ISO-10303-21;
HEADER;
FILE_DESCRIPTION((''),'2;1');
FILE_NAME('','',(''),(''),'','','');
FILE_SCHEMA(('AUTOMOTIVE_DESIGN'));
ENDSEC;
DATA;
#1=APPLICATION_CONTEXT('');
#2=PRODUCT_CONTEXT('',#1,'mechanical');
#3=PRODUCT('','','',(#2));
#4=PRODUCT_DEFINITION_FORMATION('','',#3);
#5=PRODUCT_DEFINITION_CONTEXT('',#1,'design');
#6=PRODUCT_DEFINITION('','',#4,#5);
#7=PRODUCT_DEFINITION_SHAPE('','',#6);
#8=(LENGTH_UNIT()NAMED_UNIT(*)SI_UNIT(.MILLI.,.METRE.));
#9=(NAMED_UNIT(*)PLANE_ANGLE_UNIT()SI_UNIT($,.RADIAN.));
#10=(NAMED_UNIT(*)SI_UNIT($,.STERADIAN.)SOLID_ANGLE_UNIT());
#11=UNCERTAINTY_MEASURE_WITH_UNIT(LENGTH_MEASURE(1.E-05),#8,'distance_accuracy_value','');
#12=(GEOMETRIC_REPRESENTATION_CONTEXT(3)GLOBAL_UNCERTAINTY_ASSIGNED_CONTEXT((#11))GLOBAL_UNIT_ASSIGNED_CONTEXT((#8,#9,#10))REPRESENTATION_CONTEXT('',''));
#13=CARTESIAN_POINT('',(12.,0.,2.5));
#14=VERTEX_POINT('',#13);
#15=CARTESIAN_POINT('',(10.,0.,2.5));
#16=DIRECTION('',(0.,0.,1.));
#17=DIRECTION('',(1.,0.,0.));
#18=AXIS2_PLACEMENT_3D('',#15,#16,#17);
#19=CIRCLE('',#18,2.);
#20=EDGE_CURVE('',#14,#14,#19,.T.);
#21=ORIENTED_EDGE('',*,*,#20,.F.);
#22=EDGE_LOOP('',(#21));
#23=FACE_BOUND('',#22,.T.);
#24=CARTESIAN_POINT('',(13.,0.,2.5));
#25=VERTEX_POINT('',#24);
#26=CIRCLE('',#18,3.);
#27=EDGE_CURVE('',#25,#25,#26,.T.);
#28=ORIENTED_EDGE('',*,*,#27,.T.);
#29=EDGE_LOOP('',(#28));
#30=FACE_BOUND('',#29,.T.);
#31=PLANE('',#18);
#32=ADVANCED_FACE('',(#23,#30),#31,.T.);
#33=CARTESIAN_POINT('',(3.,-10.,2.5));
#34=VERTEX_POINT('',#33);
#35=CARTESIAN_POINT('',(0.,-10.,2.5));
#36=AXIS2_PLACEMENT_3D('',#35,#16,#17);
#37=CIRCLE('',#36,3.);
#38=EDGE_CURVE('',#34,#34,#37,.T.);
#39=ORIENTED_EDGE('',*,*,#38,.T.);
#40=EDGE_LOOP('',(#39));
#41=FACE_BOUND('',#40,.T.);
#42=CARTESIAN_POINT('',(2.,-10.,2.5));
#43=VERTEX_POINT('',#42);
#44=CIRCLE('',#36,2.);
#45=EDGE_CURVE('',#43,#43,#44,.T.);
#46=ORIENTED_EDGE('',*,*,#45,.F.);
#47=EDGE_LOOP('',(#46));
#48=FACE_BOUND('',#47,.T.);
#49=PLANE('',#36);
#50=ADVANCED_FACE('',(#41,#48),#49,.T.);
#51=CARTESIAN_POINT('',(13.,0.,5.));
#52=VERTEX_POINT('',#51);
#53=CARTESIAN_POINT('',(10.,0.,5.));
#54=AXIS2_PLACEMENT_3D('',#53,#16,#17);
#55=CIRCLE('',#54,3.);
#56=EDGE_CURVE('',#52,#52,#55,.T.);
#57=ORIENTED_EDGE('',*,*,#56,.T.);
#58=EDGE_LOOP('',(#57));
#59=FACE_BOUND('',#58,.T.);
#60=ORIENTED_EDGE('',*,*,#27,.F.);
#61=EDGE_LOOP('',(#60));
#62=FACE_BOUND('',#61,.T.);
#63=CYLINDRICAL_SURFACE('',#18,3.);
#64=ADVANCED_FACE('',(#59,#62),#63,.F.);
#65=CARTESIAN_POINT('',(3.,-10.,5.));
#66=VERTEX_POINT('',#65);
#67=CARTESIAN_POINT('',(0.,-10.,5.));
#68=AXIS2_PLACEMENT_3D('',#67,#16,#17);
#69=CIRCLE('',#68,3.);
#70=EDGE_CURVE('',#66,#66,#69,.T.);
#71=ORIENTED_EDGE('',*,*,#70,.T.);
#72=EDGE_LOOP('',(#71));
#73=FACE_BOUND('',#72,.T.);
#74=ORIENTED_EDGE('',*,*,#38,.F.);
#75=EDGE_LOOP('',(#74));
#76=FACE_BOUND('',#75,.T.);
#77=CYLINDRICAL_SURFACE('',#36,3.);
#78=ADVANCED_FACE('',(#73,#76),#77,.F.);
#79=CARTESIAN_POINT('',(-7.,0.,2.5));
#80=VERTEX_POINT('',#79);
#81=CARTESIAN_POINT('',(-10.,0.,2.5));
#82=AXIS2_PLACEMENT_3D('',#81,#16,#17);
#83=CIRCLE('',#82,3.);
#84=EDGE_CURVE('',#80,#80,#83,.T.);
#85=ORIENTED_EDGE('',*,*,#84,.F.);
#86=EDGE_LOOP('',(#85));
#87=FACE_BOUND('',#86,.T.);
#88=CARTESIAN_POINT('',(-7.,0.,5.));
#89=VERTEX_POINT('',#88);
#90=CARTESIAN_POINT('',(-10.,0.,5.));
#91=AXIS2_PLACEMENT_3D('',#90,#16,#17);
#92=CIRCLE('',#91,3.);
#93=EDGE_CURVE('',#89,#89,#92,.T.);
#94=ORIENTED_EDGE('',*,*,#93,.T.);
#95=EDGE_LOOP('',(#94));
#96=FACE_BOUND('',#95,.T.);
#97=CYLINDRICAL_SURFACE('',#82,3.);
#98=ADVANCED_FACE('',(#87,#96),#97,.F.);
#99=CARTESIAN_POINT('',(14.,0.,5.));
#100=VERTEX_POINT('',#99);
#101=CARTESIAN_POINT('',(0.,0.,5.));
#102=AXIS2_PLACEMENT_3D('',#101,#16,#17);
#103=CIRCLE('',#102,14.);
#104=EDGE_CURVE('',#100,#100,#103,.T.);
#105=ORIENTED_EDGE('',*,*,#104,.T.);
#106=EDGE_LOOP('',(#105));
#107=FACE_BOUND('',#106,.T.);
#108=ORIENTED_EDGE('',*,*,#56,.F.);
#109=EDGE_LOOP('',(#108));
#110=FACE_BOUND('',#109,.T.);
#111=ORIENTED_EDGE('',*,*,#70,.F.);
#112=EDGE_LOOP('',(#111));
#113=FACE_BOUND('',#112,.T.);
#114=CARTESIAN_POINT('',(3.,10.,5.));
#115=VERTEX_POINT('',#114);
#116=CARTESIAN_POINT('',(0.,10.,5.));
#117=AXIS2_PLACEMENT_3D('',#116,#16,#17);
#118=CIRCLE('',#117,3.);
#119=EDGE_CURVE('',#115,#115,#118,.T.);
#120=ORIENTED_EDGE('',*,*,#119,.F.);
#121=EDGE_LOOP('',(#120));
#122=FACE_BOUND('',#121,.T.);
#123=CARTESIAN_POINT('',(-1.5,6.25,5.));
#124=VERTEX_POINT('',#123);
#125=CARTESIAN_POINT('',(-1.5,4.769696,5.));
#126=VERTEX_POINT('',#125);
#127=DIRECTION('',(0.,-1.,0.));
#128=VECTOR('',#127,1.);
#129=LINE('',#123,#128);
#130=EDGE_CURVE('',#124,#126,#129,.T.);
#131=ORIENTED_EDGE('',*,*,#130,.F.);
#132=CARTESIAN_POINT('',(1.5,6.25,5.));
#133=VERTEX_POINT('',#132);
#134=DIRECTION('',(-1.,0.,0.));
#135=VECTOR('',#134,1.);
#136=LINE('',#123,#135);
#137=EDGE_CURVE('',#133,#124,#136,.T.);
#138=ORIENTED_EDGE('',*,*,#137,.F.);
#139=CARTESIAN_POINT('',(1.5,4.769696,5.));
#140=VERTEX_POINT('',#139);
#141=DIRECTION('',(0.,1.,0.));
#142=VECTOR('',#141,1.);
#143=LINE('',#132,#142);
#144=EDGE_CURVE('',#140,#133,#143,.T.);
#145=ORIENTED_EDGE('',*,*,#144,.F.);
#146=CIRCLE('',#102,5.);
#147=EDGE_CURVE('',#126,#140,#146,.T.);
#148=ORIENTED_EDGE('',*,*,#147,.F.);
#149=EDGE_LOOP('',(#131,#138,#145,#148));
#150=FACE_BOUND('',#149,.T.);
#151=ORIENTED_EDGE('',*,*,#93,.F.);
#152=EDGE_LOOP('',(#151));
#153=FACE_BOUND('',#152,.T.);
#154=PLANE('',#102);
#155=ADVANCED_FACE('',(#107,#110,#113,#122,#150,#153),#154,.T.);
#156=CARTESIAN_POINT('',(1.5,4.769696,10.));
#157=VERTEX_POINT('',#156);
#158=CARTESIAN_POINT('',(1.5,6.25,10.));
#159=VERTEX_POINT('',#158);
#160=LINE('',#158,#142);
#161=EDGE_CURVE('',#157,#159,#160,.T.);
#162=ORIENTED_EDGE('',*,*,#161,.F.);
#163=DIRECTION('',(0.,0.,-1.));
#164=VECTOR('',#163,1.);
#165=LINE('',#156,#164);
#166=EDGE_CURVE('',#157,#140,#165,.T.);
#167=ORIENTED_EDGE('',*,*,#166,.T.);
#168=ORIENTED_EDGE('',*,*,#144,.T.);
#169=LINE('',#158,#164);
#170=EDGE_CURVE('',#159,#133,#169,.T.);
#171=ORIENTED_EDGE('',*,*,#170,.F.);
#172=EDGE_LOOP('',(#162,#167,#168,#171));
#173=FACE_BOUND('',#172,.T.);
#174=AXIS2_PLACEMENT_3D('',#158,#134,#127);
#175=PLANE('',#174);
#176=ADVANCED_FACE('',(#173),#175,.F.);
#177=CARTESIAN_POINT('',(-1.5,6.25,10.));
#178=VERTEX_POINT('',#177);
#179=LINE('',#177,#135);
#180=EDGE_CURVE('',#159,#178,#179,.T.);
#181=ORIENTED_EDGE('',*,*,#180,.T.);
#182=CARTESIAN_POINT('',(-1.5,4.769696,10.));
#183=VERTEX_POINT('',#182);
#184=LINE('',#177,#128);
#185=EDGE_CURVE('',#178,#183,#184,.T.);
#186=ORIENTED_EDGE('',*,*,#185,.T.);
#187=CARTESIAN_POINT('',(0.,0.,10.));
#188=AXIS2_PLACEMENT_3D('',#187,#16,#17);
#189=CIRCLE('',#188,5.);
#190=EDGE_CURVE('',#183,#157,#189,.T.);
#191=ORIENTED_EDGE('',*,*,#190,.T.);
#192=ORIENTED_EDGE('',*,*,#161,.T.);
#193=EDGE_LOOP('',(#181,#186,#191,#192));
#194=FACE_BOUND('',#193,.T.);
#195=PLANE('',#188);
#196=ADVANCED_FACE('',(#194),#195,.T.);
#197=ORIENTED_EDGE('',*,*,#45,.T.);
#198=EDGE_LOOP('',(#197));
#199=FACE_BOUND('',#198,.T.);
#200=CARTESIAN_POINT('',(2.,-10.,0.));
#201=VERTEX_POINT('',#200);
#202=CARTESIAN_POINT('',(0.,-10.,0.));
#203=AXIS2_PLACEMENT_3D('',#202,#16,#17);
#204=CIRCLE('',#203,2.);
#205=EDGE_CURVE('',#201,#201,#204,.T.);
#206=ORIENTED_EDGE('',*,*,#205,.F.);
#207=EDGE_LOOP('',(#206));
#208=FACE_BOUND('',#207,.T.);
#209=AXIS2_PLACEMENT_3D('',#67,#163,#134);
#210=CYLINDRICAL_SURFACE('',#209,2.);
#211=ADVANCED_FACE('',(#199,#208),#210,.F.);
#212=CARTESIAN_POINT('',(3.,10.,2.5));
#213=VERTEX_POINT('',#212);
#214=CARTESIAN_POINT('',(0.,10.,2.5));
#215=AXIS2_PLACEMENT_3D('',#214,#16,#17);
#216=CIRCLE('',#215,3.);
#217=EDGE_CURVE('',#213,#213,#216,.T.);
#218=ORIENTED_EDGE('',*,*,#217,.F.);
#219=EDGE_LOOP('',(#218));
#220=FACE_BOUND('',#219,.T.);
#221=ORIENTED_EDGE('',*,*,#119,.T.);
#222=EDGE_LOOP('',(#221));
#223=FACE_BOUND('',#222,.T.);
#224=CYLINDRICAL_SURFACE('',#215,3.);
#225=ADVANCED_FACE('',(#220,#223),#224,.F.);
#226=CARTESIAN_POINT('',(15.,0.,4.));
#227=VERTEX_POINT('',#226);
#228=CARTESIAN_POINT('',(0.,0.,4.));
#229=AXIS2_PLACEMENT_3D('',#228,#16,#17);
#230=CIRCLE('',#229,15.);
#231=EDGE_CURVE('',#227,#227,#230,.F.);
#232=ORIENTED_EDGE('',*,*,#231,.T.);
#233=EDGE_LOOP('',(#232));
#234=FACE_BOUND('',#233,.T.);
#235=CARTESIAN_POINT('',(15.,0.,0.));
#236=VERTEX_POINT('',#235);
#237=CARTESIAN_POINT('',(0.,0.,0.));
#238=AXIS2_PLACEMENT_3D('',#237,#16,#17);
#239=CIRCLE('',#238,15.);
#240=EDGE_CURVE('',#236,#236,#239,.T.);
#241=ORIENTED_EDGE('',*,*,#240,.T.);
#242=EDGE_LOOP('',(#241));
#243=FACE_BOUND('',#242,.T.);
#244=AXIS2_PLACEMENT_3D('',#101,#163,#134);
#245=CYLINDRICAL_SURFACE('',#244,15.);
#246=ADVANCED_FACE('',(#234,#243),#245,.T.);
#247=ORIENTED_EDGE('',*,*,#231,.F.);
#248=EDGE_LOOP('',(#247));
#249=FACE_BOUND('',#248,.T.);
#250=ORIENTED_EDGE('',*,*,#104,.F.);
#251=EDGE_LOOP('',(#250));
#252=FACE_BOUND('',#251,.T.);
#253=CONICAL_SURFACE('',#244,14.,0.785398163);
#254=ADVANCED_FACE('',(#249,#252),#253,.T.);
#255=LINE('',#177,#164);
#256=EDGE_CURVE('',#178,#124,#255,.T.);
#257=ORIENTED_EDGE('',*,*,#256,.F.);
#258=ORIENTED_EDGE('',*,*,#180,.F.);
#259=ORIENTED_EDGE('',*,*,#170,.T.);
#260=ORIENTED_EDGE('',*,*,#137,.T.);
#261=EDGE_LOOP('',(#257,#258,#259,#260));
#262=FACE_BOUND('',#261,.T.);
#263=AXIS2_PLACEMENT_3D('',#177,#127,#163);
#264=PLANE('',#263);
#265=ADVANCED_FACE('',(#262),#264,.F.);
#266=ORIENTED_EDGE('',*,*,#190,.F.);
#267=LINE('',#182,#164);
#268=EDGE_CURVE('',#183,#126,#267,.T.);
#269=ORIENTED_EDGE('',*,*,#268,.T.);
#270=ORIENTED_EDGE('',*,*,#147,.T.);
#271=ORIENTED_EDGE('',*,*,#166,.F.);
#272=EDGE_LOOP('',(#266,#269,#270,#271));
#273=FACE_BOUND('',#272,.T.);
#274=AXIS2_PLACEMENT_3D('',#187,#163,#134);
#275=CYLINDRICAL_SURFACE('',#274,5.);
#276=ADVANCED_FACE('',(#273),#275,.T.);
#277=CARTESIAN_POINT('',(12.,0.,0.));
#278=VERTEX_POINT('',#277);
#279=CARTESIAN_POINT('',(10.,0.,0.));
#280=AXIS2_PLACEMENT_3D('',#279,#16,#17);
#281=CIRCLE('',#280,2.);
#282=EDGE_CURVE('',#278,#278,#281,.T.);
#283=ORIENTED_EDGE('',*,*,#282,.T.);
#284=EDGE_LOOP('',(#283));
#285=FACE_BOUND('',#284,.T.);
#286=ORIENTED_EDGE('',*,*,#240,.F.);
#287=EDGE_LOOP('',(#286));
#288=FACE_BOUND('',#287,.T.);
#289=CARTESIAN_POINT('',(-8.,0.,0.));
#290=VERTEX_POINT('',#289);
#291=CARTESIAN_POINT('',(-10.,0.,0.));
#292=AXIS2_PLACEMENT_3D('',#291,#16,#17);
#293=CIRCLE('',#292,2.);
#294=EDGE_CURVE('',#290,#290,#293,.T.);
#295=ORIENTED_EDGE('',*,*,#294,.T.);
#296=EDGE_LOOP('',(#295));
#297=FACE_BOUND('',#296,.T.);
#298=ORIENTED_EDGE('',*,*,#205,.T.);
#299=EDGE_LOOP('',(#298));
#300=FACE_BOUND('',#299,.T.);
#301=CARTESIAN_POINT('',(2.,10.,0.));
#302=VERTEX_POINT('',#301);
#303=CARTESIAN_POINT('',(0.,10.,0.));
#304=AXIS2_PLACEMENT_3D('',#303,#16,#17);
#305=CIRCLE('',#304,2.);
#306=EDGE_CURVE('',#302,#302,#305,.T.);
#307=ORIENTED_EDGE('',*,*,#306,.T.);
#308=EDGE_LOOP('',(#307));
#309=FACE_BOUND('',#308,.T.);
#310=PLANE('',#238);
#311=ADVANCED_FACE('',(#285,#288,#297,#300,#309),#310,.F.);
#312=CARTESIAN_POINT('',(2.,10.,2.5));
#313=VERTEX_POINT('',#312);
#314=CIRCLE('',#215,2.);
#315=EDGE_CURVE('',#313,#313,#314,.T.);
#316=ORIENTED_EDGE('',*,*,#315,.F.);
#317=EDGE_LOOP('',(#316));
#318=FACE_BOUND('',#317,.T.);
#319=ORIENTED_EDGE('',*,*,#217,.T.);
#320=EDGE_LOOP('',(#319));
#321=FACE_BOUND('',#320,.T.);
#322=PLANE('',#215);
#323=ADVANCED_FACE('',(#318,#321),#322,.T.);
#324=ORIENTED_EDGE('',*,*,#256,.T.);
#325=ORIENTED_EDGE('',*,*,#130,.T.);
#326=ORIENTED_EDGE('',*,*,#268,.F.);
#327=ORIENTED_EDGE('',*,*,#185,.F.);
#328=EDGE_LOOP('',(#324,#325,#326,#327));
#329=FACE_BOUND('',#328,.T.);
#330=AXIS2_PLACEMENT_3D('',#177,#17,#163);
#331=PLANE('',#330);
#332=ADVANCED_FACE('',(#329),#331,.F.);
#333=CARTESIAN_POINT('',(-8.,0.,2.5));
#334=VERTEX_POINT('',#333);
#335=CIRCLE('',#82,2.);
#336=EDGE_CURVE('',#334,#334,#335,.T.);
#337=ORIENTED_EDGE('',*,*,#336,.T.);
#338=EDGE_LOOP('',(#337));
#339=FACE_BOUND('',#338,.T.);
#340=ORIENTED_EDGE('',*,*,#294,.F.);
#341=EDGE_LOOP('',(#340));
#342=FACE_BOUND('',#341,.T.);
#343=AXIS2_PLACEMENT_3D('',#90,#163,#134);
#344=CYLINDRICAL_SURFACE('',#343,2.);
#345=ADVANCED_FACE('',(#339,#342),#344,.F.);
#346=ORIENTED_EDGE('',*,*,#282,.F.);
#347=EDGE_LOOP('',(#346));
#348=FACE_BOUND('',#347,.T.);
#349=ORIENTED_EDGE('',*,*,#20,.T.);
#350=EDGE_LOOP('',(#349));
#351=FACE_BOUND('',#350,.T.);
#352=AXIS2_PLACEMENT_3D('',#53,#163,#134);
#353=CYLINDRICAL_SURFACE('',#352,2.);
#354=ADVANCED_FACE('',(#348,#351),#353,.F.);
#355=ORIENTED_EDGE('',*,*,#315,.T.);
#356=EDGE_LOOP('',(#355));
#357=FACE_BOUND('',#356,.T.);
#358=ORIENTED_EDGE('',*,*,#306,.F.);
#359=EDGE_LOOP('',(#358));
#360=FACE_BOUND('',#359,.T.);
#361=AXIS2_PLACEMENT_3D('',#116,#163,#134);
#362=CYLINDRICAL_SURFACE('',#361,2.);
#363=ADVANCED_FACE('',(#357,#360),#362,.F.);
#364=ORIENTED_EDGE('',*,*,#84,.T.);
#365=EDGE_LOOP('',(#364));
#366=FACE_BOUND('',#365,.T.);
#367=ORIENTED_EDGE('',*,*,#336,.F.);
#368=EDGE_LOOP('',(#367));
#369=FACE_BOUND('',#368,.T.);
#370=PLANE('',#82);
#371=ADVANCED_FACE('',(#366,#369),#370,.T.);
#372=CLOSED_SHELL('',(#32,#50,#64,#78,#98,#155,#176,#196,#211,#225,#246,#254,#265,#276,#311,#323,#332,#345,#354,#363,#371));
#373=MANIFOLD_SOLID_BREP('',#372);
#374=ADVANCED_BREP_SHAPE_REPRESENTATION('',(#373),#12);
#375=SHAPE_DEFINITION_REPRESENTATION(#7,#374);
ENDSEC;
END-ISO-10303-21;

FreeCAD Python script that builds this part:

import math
import FreeCAD as App
import Part
import Sketcher
from FreeCAD import Vector


def edges_at(feature, points):
    """Names of the edges that pass closest to the given points."""
    edges = feature.Shape.Edges
    near = lambda p: min(range(len(edges)), key=lambda i: edges[i].distToShape(Part.Vertex(*p))[0])
    return sorted({f"Edge{near(p) + 1}" for p in points})

doc = App.newDocument("Part")
params = doc.addObject("Spreadsheet::Sheet", "Params")
for row, (alias, value) in enumerate([
    ("sketch1_diameter", "30 mm"),
    ("sketch1_diameter2", "4 mm"),
    ("pad1_length", "5 mm"),
    ("sketch2_radius", "5 mm"),
    ("sketch2_width", "3 mm"),
    ("pad2_length", "5 mm"),
    ("sketch3_diameter", "6 mm"),
    ("pocket1_length", "2.5 mm"),
    ("chamfer_size", "1 mm"),
], start=1):
    params.set(f"A{row}", alias)
    params.set(f"B{row}", "=" + value)
    params.setAlias(f"B{row}", alias)

body = doc.addObject("PartDesign::Body", "Body")

# Sketch on XY plane
sketch1 = body.newObject("Sketcher::SketchObject", "Sketch")
sketch1.AttachmentSupport = (doc.getObject("XY_Plane"), [""])
sketch1.MapMode = "FlatFace"
sketch1.addGeometry([
    Part.Circle(Vector(0, 0, 0), Vector(0, 0, 1), 15),  # 0
    Part.Circle(Vector(0, -10, 0), Vector(0, 0, 1), 2),  # 1
    Part.Circle(Vector(-10, 0, 0), Vector(0, 0, 1), 2),  # 2
    Part.Circle(Vector(10, 0, 0), Vector(0, 0, 1), 2),  # 3
    Part.Circle(Vector(0, 10, 0), Vector(0, 0, 1), 2),  # 4
], False)
sketch1.addConstraint([
    Sketcher.Constraint("Coincident", 0, 3, -1, 1),
    Sketcher.Constraint("Equal", 1, 2),
    Sketcher.Constraint("Equal", 2, 3),
    Sketcher.Constraint("Equal", 3, 4),
    Sketcher.Constraint("Symmetric", 2, 3, 3, 3, -1, 1),
    Sketcher.Constraint("Symmetric", 1, 3, 4, 3, -1, 1),
    Sketcher.Constraint("PointOnObject", 1, 3, -2),
    Sketcher.Constraint("PointOnObject", 2, 3, -1),
    Sketcher.Constraint("Diameter", 0, 30.0),
    Sketcher.Constraint("Diameter", 1, 4.0),
    Sketcher.Constraint("DistanceY", 1, 3, -1, 1, 10.0),
    Sketcher.Constraint("DistanceX", 2, 3, -1, 1, 10.0),
])
sketch1.setExpression("Constraints[8]", "Params.sketch1_diameter")
sketch1.setExpression("Constraints[9]", "Params.sketch1_diameter2")
pad1 = body.newObject("PartDesign::Pad", "Pad")
pad1.Profile = sketch1
pad1.setExpression("Length", "Params.pad1_length")

# Sketch on XY plane
sketch2 = body.newObject("Sketcher::SketchObject", "Sketch001")
sketch2.AttachmentSupport = (doc.getObject("XY_Plane"), [""])
sketch2.MapMode = "FlatFace"
sketch2.AttachmentOffset = App.Placement(Vector(0, 0, 5), App.Rotation())
sketch2.addGeometry([
    Part.LineSegment(Vector(1.5, 6.2, 0), Vector(-1.5, 6.2, 0)),
    Part.LineSegment(Vector(-1.5, 6.2, 0), Vector(-1.5, 4.8, 0)),
    Part.ArcOfCircle(Part.Circle(Vector(0, 0, 0), Vector(0, 0, 1), 5), math.radians(107), math.radians(433)),
    Part.LineSegment(Vector(1.5, 4.8, 0), Vector(1.5, 6.2, 0)),
], False)
sketch2.addConstraint([
    Sketcher.Constraint("Coincident", 0, 2, 1, 1),
    Sketcher.Constraint("Coincident", 1, 2, 2, 1),
    Sketcher.Constraint("Coincident", 2, 2, 3, 1),
    Sketcher.Constraint("Coincident", 3, 2, 0, 1),
    Sketcher.Constraint("Horizontal", 0),
    Sketcher.Constraint("Vertical", 1),
    Sketcher.Constraint("Vertical", 3),
    Sketcher.Constraint("Coincident", 2, 3, -1, 1),
    Sketcher.Constraint("Horizontal", 1, 2, 2, 2),
    Sketcher.Constraint("Radius", 2, 5.0),
    Sketcher.Constraint("DistanceX", 0, 2, 0, 1, 3.0),
    Sketcher.Constraint("DistanceY", -1, 1, 0, 2, 6.25),
])
sketch2.setExpression("Constraints[9]", "Params.sketch2_radius")
sketch2.setExpression("Constraints[10]", "Params.sketch2_width")
pad2 = body.newObject("PartDesign::Pad", "Pad001")
pad2.Profile = sketch2
pad2.setExpression("Length", "Params.pad2_length")

# Sketch on XY plane
sketch3 = body.newObject("Sketcher::SketchObject", "Sketch002")
sketch3.AttachmentSupport = (doc.getObject("XY_Plane"), [""])
sketch3.MapMode = "FlatFace"
sketch3.AttachmentOffset = App.Placement(Vector(0, 0, 5), App.Rotation())
sketch3.addGeometry([
    Part.Circle(Vector(0, 10, 0), Vector(0, 0, 1), 3),
    Part.Circle(Vector(-10, 0, 0), Vector(0, 0, 1), 3),
    Part.Circle(Vector(10, 0, 0), Vector(0, 0, 1), 3),
    Part.Circle(Vector(0, -10, 0), Vector(0, 0, 1), 3),
], False)
sketch3.addConstraint([
    Sketcher.Constraint("Equal", 0, 1),
    Sketcher.Constraint("Equal", 1, 2),
    Sketcher.Constraint("Equal", 2, 3),
    Sketcher.Constraint("Symmetric", 1, 3, 2, 3, -1, 1),
    Sketcher.Constraint("Symmetric", 0, 3, 3, 3, -1, 1),
    Sketcher.Constraint("PointOnObject", 0, 3, -2),
    Sketcher.Constraint("PointOnObject", 1, 3, -1),
    Sketcher.Constraint("Diameter", 0, 6.0),
    Sketcher.Constraint("DistanceY", -1, 1, 0, 3, 10.0),
    Sketcher.Constraint("DistanceX", 1, 3, -1, 1, 10.0),
])
sketch3.setExpression("Constraints[7]", "Params.sketch3_diameter")
pocket1 = body.newObject("PartDesign::Pocket", "Pocket")
pocket1.Profile = sketch3
pocket1.setExpression("Length", "Params.pocket1_length")
doc.recompute()

chamfer = body.newObject("PartDesign::Chamfer", "Chamfer")
chamfer.Base = (pocket1, edges_at(pocket1, [(-15, 0, 5)]))
chamfer.setExpression("Size", "Params.chamfer_size")

doc.recompute()
